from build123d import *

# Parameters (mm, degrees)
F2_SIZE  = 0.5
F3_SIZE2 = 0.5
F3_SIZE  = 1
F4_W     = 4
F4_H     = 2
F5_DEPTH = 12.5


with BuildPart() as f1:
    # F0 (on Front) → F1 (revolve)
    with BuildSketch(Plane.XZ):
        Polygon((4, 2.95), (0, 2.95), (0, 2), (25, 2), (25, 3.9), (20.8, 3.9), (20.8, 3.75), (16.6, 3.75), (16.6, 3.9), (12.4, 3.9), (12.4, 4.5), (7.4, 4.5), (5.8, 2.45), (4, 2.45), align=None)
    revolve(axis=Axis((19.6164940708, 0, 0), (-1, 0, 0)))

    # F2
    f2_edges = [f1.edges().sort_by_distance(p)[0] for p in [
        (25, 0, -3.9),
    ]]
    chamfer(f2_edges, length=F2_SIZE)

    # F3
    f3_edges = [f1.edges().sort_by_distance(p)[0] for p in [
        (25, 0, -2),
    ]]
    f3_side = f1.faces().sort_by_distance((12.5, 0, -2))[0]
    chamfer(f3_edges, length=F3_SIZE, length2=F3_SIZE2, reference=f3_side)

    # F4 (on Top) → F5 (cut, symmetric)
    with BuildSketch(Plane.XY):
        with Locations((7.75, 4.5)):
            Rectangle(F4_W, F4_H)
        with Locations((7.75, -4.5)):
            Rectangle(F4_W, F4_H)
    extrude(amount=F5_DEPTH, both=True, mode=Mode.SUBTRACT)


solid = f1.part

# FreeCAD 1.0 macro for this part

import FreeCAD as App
import Part
import Sketcher

V = App.Vector
Q = App.Units.Quantity


def edges_at(feature, points):
    """Names of the edges that pass closest to the given points."""
    edges = feature.Shape.Edges
    near = lambda p: min(range(len(edges)), key=lambda i: edges[i].distToShape(Part.Vertex(*p))[0])
    return sorted({f"Edge{near(p) + 1}" for p in points})

doc = App.newDocument("Part")
body = doc.addObject("PartDesign::Body", "Body")

sketch1 = body.newObject("Sketcher::SketchObject", "Sketch")
sketch1.AttachmentSupport = (doc.getObject("XZ_Plane"), [""])
sketch1.MapMode = "FlatFace"
sketch1.addGeometry([
    Part.LineSegment(V(4, 2.95, 0), V(0, 2.95, 0)),
    Part.LineSegment(V(0, 2.95, 0), V(0, 2, 0)),
    Part.LineSegment(V(0, 2, 0), V(25, 2, 0)),
    Part.LineSegment(V(25, 2, 0), V(25, 3.9, 0)),
    Part.LineSegment(V(25, 3.9, 0), V(20.8, 3.9, 0)),
    Part.LineSegment(V(20.8, 3.9, 0), V(20.8, 3.75, 0)),
    Part.LineSegment(V(20.8, 3.75, 0), V(16.6, 3.75, 0)),
    Part.LineSegment(V(16.6, 3.75, 0), V(16.6, 3.9, 0)),
    Part.LineSegment(V(16.6, 3.9, 0), V(12.4, 3.9, 0)),
    Part.LineSegment(V(12.4, 3.9, 0), V(12.4, 4.5, 0)),
    Part.LineSegment(V(12.4, 4.5, 0), V(7.4, 4.5, 0)),
    Part.LineSegment(V(7.4, 4.5, 0), V(5.8, 2.45, 0)),
    Part.LineSegment(V(5.8, 2.45, 0), V(4, 2.45, 0)),
    Part.LineSegment(V(4, 2.45, 0), V(4, 2.95, 0)),
], False)
sketch1.addConstraint([
    Sketcher.Constraint("Coincident", 0, 2, 1, 1),
    Sketcher.Constraint("Coincident", 1, 2, 2, 1),
    Sketcher.Constraint("Coincident", 2, 2, 3, 1),
    Sketcher.Constraint("Coincident", 3, 2, 4, 1),
    Sketcher.Constraint("Coincident", 4, 2, 5, 1),
    Sketcher.Constraint("Coincident", 5, 2, 6, 1),
    Sketcher.Constraint("Coincident", 6, 2, 7, 1),
    Sketcher.Constraint("Coincident", 7, 2, 8, 1),
    Sketcher.Constraint("Coincident", 8, 2, 9, 1),
    Sketcher.Constraint("Coincident", 9, 2, 10, 1),
    Sketcher.Constraint("Coincident", 10, 2, 11, 1),
    Sketcher.Constraint("Coincident", 11, 2, 12, 1),
    Sketcher.Constraint("Coincident", 12, 2, 13, 1),
    Sketcher.Constraint("Coincident", 13, 2, 0, 1),
    Sketcher.Constraint("Horizontal", 0),
    Sketcher.Constraint("Vertical", 1),
    Sketcher.Constraint("Horizontal", 2),
    Sketcher.Constraint("Vertical", 3),
    Sketcher.Constraint("Horizontal", 4),
    Sketcher.Constraint("Vertical", 5),
    Sketcher.Constraint("Horizontal", 6),
    Sketcher.Constraint("Vertical", 7),
    Sketcher.Constraint("Horizontal", 8),
    Sketcher.Constraint("Vertical", 9),
    Sketcher.Constraint("Horizontal", 10),
    Sketcher.Constraint("Horizontal", 12),
    Sketcher.Constraint("Vertical", 13),
    Sketcher.Constraint("PointOnObject", 0, 2, -2),
    Sketcher.Constraint("Horizontal", 4, 2, 7, 2),
    Sketcher.Constraint("Equal", 4, 6),
    Sketcher.Constraint("Equal", 6, 8),
    Sketcher.Constraint("DistanceX", 0, 2, 0, 1, Q("4 mm")),
    Sketcher.Constraint("DistanceX", 2, 1, 2, 2, Q("25 mm")),
    Sketcher.Constraint("DistanceX", 10, 2, 10, 1, Q("5 mm")),
    Sketcher.Constraint("DistanceX", 4, 2, 4, 1, Q("4.2 mm")),
    Sketcher.Constraint("DistanceX", 12, 2, 12, 1, Q("1.8 mm")),
    Sketcher.Constraint("DistanceY", 3, 1, 3, 2, Q("1.9 mm")),
    Sketcher.Constraint("DistanceY", 9, 1, 9, 2, Q("0.6 mm")),
    Sketcher.Constraint("DistanceY", 13, 1, 13, 2, Q("0.5 mm")),
    Sketcher.Constraint("DistanceY", -1, 1, 1, 2, Q("2 mm")),
    Sketcher.Constraint("DistanceY", 1, 2, 1, 1, Q("0.95 mm")),
    Sketcher.Constraint("DistanceY", 5, 2, 5, 1, Q("0.15 mm")),
])
revolution = body.newObject("PartDesign::Revolution", "Revolution")
revolution.Profile = sketch1
revolution.ReferenceAxis = (sketch1, ["H_Axis"])
revolution.Angle = 360
doc.recompute()

chamfer = body.newObject("PartDesign::Chamfer", "Chamfer")
chamfer.Base = (revolution, edges_at(revolution, [(25, 0, -3.9)]))
chamfer.Size = 0.5
doc.recompute()

chamfer2 = body.newObject("PartDesign::Chamfer", "Chamfer001")
chamfer2.Base = (chamfer, edges_at(chamfer, [(25, 0, -2)]))
chamfer2.ChamferType = "Two distances"
chamfer2.Size = 1
chamfer2.Size2 = 0.5
chamfer2.FlipDirection = True

sketch2 = body.newObject("Sketcher::SketchObject", "Sketch001")
sketch2.AttachmentSupport = (doc.getObject("XY_Plane"), [""])
sketch2.MapMode = "FlatFace"
sketch2.addGeometry([
    Part.LineSegment(V(5.8, 5.5, 0), V(5.8, 3.5, 0)),
    Part.LineSegment(V(5.8, 3.5, 0), V(9.8, 3.5, 0)),
    Part.LineSegment(V(9.8, 3.5, 0), V(9.8, 5.5, 0)),
    Part.LineSegment(V(9.8, 5.5, 0), V(5.8, 5.5, 0)),
    Part.LineSegment(V(5.8, -3.5, 0), V(5.8, -5.5, 0)),
    Part.LineSegment(V(5.8, -5.5, 0), V(9.8, -5.5, 0)),
    Part.LineSegment(V(9.8, -5.5, 0), V(9.8, -3.5, 0)),
    Part.LineSegment(V(9.8, -3.5, 0), V(5.8, -3.5, 0)),
], False)
sketch2.addConstraint([
    Sketcher.Constraint("Coincident", 0, 2, 1, 1),
    Sketcher.Constraint("Coincident", 1, 2, 2, 1),
    Sketcher.Constraint("Coincident", 2, 2, 3, 1),
    Sketcher.Constraint("Coincident", 3, 2, 0, 1),
    Sketcher.Constraint("Coincident", 4, 2, 5, 1),
    Sketcher.Constraint("Coincident", 5, 2, 6, 1),
    Sketcher.Constraint("Coincident", 6, 2, 7, 1),
    Sketcher.Constraint("Coincident", 7, 2, 4, 1),
    Sketcher.Constraint("Vertical", 0),
    Sketcher.Constraint("Horizontal", 1),
    Sketcher.Constraint("Vertical", 2),
    Sketcher.Constraint("Horizontal", 3),
    Sketcher.Constraint("Vertical", 4),
    Sketcher.Constraint("Horizontal", 5),
    Sketcher.Constraint("Vertical", 6),
    Sketcher.Constraint("Horizontal", 7),
    Sketcher.Constraint("Symmetric", 3, 2, 4, 2, -1),
    Sketcher.Constraint("Symmetric", 1, 2, 6, 2, -1),
    Sketcher.Constraint("DistanceX", 1, 1, 1, 2, Q("4 mm")),
    Sketcher.Constraint("DistanceY", 0, 2, 0, 1, Q("2 mm")),
    Sketcher.Constraint("DistanceY", 4, 2, 0, 2, Q("9 mm")),
    Sketcher.Constraint("DistanceX", -1, 1, 0, 2, Q("5.75 mm")),
])
pocket1 = body.newObject("PartDesign::Pocket", "Pocket")
pocket1.Profile = sketch2
pocket1.Length = 25
pocket1.Midplane = True

doc.recompute()
